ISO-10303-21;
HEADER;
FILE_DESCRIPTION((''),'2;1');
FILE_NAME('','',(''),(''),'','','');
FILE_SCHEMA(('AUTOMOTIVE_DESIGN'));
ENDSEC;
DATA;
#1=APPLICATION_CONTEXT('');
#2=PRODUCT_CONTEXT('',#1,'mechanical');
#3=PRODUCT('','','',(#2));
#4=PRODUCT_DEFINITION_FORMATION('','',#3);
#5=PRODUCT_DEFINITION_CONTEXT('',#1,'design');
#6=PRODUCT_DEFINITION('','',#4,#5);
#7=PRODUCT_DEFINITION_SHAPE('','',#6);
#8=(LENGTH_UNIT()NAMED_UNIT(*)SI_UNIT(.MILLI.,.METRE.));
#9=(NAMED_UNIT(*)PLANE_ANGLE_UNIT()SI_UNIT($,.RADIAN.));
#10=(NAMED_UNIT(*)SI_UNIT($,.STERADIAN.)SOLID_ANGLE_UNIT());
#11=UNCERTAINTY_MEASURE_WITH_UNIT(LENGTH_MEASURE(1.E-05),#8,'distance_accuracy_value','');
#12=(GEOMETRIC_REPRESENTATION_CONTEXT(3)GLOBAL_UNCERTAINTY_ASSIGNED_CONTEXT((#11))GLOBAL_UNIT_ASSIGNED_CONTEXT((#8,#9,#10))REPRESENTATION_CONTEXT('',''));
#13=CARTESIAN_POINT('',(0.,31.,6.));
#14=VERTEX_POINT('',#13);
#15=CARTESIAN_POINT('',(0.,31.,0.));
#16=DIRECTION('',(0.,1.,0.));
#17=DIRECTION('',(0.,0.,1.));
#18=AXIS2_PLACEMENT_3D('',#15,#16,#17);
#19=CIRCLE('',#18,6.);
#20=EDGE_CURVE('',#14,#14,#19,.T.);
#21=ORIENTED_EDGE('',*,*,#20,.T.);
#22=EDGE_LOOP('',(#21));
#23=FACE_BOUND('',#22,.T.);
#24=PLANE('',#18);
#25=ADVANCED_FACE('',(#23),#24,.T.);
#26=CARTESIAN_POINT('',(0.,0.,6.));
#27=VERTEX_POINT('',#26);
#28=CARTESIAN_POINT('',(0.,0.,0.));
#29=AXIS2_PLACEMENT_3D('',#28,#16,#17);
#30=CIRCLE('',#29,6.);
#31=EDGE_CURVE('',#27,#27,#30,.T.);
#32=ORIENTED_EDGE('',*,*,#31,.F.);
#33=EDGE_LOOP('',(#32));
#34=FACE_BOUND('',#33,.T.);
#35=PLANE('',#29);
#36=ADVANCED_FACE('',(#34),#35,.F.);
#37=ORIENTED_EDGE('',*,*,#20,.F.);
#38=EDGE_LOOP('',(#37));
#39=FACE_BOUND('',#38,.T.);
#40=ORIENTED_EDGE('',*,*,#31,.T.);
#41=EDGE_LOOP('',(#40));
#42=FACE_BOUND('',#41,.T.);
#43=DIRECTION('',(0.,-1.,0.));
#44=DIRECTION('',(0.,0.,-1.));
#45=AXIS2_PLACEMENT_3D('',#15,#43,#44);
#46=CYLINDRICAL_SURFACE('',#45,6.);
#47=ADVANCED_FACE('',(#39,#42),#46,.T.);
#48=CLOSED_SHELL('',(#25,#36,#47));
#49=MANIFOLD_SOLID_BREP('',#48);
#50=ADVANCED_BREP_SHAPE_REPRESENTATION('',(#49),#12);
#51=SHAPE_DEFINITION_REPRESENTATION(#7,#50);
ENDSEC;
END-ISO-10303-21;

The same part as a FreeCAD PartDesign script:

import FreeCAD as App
import Part
import Sketcher
from FreeCAD import Vector

doc = App.newDocument("Part")
body = doc.addObject("PartDesign::Body", "Body")

# Sketch on XZ plane
sketch1 = body.newObject("Sketcher::SketchObject", "Sketch")
sketch1.AttachmentSupport = (doc.getObject("XZ_Plane"), [""])
sketch1.MapMode = "FlatFace"
sketch1.addGeometry(Part.Circle(Vector(0, 0, 0), Vector(0, 0, 1), 6), False)
sketch1.addConstraint([
    Sketcher.Constraint("Coincident", 0, 3, -1, 1),
    Sketcher.Constraint("Diameter", 0, 12.0),
])
pad1 = body.newObject("PartDesign::Pad", "Pad")
pad1.Profile = sketch1
pad1.Length = 31
pad1.Reversed = True

doc.recompute()
